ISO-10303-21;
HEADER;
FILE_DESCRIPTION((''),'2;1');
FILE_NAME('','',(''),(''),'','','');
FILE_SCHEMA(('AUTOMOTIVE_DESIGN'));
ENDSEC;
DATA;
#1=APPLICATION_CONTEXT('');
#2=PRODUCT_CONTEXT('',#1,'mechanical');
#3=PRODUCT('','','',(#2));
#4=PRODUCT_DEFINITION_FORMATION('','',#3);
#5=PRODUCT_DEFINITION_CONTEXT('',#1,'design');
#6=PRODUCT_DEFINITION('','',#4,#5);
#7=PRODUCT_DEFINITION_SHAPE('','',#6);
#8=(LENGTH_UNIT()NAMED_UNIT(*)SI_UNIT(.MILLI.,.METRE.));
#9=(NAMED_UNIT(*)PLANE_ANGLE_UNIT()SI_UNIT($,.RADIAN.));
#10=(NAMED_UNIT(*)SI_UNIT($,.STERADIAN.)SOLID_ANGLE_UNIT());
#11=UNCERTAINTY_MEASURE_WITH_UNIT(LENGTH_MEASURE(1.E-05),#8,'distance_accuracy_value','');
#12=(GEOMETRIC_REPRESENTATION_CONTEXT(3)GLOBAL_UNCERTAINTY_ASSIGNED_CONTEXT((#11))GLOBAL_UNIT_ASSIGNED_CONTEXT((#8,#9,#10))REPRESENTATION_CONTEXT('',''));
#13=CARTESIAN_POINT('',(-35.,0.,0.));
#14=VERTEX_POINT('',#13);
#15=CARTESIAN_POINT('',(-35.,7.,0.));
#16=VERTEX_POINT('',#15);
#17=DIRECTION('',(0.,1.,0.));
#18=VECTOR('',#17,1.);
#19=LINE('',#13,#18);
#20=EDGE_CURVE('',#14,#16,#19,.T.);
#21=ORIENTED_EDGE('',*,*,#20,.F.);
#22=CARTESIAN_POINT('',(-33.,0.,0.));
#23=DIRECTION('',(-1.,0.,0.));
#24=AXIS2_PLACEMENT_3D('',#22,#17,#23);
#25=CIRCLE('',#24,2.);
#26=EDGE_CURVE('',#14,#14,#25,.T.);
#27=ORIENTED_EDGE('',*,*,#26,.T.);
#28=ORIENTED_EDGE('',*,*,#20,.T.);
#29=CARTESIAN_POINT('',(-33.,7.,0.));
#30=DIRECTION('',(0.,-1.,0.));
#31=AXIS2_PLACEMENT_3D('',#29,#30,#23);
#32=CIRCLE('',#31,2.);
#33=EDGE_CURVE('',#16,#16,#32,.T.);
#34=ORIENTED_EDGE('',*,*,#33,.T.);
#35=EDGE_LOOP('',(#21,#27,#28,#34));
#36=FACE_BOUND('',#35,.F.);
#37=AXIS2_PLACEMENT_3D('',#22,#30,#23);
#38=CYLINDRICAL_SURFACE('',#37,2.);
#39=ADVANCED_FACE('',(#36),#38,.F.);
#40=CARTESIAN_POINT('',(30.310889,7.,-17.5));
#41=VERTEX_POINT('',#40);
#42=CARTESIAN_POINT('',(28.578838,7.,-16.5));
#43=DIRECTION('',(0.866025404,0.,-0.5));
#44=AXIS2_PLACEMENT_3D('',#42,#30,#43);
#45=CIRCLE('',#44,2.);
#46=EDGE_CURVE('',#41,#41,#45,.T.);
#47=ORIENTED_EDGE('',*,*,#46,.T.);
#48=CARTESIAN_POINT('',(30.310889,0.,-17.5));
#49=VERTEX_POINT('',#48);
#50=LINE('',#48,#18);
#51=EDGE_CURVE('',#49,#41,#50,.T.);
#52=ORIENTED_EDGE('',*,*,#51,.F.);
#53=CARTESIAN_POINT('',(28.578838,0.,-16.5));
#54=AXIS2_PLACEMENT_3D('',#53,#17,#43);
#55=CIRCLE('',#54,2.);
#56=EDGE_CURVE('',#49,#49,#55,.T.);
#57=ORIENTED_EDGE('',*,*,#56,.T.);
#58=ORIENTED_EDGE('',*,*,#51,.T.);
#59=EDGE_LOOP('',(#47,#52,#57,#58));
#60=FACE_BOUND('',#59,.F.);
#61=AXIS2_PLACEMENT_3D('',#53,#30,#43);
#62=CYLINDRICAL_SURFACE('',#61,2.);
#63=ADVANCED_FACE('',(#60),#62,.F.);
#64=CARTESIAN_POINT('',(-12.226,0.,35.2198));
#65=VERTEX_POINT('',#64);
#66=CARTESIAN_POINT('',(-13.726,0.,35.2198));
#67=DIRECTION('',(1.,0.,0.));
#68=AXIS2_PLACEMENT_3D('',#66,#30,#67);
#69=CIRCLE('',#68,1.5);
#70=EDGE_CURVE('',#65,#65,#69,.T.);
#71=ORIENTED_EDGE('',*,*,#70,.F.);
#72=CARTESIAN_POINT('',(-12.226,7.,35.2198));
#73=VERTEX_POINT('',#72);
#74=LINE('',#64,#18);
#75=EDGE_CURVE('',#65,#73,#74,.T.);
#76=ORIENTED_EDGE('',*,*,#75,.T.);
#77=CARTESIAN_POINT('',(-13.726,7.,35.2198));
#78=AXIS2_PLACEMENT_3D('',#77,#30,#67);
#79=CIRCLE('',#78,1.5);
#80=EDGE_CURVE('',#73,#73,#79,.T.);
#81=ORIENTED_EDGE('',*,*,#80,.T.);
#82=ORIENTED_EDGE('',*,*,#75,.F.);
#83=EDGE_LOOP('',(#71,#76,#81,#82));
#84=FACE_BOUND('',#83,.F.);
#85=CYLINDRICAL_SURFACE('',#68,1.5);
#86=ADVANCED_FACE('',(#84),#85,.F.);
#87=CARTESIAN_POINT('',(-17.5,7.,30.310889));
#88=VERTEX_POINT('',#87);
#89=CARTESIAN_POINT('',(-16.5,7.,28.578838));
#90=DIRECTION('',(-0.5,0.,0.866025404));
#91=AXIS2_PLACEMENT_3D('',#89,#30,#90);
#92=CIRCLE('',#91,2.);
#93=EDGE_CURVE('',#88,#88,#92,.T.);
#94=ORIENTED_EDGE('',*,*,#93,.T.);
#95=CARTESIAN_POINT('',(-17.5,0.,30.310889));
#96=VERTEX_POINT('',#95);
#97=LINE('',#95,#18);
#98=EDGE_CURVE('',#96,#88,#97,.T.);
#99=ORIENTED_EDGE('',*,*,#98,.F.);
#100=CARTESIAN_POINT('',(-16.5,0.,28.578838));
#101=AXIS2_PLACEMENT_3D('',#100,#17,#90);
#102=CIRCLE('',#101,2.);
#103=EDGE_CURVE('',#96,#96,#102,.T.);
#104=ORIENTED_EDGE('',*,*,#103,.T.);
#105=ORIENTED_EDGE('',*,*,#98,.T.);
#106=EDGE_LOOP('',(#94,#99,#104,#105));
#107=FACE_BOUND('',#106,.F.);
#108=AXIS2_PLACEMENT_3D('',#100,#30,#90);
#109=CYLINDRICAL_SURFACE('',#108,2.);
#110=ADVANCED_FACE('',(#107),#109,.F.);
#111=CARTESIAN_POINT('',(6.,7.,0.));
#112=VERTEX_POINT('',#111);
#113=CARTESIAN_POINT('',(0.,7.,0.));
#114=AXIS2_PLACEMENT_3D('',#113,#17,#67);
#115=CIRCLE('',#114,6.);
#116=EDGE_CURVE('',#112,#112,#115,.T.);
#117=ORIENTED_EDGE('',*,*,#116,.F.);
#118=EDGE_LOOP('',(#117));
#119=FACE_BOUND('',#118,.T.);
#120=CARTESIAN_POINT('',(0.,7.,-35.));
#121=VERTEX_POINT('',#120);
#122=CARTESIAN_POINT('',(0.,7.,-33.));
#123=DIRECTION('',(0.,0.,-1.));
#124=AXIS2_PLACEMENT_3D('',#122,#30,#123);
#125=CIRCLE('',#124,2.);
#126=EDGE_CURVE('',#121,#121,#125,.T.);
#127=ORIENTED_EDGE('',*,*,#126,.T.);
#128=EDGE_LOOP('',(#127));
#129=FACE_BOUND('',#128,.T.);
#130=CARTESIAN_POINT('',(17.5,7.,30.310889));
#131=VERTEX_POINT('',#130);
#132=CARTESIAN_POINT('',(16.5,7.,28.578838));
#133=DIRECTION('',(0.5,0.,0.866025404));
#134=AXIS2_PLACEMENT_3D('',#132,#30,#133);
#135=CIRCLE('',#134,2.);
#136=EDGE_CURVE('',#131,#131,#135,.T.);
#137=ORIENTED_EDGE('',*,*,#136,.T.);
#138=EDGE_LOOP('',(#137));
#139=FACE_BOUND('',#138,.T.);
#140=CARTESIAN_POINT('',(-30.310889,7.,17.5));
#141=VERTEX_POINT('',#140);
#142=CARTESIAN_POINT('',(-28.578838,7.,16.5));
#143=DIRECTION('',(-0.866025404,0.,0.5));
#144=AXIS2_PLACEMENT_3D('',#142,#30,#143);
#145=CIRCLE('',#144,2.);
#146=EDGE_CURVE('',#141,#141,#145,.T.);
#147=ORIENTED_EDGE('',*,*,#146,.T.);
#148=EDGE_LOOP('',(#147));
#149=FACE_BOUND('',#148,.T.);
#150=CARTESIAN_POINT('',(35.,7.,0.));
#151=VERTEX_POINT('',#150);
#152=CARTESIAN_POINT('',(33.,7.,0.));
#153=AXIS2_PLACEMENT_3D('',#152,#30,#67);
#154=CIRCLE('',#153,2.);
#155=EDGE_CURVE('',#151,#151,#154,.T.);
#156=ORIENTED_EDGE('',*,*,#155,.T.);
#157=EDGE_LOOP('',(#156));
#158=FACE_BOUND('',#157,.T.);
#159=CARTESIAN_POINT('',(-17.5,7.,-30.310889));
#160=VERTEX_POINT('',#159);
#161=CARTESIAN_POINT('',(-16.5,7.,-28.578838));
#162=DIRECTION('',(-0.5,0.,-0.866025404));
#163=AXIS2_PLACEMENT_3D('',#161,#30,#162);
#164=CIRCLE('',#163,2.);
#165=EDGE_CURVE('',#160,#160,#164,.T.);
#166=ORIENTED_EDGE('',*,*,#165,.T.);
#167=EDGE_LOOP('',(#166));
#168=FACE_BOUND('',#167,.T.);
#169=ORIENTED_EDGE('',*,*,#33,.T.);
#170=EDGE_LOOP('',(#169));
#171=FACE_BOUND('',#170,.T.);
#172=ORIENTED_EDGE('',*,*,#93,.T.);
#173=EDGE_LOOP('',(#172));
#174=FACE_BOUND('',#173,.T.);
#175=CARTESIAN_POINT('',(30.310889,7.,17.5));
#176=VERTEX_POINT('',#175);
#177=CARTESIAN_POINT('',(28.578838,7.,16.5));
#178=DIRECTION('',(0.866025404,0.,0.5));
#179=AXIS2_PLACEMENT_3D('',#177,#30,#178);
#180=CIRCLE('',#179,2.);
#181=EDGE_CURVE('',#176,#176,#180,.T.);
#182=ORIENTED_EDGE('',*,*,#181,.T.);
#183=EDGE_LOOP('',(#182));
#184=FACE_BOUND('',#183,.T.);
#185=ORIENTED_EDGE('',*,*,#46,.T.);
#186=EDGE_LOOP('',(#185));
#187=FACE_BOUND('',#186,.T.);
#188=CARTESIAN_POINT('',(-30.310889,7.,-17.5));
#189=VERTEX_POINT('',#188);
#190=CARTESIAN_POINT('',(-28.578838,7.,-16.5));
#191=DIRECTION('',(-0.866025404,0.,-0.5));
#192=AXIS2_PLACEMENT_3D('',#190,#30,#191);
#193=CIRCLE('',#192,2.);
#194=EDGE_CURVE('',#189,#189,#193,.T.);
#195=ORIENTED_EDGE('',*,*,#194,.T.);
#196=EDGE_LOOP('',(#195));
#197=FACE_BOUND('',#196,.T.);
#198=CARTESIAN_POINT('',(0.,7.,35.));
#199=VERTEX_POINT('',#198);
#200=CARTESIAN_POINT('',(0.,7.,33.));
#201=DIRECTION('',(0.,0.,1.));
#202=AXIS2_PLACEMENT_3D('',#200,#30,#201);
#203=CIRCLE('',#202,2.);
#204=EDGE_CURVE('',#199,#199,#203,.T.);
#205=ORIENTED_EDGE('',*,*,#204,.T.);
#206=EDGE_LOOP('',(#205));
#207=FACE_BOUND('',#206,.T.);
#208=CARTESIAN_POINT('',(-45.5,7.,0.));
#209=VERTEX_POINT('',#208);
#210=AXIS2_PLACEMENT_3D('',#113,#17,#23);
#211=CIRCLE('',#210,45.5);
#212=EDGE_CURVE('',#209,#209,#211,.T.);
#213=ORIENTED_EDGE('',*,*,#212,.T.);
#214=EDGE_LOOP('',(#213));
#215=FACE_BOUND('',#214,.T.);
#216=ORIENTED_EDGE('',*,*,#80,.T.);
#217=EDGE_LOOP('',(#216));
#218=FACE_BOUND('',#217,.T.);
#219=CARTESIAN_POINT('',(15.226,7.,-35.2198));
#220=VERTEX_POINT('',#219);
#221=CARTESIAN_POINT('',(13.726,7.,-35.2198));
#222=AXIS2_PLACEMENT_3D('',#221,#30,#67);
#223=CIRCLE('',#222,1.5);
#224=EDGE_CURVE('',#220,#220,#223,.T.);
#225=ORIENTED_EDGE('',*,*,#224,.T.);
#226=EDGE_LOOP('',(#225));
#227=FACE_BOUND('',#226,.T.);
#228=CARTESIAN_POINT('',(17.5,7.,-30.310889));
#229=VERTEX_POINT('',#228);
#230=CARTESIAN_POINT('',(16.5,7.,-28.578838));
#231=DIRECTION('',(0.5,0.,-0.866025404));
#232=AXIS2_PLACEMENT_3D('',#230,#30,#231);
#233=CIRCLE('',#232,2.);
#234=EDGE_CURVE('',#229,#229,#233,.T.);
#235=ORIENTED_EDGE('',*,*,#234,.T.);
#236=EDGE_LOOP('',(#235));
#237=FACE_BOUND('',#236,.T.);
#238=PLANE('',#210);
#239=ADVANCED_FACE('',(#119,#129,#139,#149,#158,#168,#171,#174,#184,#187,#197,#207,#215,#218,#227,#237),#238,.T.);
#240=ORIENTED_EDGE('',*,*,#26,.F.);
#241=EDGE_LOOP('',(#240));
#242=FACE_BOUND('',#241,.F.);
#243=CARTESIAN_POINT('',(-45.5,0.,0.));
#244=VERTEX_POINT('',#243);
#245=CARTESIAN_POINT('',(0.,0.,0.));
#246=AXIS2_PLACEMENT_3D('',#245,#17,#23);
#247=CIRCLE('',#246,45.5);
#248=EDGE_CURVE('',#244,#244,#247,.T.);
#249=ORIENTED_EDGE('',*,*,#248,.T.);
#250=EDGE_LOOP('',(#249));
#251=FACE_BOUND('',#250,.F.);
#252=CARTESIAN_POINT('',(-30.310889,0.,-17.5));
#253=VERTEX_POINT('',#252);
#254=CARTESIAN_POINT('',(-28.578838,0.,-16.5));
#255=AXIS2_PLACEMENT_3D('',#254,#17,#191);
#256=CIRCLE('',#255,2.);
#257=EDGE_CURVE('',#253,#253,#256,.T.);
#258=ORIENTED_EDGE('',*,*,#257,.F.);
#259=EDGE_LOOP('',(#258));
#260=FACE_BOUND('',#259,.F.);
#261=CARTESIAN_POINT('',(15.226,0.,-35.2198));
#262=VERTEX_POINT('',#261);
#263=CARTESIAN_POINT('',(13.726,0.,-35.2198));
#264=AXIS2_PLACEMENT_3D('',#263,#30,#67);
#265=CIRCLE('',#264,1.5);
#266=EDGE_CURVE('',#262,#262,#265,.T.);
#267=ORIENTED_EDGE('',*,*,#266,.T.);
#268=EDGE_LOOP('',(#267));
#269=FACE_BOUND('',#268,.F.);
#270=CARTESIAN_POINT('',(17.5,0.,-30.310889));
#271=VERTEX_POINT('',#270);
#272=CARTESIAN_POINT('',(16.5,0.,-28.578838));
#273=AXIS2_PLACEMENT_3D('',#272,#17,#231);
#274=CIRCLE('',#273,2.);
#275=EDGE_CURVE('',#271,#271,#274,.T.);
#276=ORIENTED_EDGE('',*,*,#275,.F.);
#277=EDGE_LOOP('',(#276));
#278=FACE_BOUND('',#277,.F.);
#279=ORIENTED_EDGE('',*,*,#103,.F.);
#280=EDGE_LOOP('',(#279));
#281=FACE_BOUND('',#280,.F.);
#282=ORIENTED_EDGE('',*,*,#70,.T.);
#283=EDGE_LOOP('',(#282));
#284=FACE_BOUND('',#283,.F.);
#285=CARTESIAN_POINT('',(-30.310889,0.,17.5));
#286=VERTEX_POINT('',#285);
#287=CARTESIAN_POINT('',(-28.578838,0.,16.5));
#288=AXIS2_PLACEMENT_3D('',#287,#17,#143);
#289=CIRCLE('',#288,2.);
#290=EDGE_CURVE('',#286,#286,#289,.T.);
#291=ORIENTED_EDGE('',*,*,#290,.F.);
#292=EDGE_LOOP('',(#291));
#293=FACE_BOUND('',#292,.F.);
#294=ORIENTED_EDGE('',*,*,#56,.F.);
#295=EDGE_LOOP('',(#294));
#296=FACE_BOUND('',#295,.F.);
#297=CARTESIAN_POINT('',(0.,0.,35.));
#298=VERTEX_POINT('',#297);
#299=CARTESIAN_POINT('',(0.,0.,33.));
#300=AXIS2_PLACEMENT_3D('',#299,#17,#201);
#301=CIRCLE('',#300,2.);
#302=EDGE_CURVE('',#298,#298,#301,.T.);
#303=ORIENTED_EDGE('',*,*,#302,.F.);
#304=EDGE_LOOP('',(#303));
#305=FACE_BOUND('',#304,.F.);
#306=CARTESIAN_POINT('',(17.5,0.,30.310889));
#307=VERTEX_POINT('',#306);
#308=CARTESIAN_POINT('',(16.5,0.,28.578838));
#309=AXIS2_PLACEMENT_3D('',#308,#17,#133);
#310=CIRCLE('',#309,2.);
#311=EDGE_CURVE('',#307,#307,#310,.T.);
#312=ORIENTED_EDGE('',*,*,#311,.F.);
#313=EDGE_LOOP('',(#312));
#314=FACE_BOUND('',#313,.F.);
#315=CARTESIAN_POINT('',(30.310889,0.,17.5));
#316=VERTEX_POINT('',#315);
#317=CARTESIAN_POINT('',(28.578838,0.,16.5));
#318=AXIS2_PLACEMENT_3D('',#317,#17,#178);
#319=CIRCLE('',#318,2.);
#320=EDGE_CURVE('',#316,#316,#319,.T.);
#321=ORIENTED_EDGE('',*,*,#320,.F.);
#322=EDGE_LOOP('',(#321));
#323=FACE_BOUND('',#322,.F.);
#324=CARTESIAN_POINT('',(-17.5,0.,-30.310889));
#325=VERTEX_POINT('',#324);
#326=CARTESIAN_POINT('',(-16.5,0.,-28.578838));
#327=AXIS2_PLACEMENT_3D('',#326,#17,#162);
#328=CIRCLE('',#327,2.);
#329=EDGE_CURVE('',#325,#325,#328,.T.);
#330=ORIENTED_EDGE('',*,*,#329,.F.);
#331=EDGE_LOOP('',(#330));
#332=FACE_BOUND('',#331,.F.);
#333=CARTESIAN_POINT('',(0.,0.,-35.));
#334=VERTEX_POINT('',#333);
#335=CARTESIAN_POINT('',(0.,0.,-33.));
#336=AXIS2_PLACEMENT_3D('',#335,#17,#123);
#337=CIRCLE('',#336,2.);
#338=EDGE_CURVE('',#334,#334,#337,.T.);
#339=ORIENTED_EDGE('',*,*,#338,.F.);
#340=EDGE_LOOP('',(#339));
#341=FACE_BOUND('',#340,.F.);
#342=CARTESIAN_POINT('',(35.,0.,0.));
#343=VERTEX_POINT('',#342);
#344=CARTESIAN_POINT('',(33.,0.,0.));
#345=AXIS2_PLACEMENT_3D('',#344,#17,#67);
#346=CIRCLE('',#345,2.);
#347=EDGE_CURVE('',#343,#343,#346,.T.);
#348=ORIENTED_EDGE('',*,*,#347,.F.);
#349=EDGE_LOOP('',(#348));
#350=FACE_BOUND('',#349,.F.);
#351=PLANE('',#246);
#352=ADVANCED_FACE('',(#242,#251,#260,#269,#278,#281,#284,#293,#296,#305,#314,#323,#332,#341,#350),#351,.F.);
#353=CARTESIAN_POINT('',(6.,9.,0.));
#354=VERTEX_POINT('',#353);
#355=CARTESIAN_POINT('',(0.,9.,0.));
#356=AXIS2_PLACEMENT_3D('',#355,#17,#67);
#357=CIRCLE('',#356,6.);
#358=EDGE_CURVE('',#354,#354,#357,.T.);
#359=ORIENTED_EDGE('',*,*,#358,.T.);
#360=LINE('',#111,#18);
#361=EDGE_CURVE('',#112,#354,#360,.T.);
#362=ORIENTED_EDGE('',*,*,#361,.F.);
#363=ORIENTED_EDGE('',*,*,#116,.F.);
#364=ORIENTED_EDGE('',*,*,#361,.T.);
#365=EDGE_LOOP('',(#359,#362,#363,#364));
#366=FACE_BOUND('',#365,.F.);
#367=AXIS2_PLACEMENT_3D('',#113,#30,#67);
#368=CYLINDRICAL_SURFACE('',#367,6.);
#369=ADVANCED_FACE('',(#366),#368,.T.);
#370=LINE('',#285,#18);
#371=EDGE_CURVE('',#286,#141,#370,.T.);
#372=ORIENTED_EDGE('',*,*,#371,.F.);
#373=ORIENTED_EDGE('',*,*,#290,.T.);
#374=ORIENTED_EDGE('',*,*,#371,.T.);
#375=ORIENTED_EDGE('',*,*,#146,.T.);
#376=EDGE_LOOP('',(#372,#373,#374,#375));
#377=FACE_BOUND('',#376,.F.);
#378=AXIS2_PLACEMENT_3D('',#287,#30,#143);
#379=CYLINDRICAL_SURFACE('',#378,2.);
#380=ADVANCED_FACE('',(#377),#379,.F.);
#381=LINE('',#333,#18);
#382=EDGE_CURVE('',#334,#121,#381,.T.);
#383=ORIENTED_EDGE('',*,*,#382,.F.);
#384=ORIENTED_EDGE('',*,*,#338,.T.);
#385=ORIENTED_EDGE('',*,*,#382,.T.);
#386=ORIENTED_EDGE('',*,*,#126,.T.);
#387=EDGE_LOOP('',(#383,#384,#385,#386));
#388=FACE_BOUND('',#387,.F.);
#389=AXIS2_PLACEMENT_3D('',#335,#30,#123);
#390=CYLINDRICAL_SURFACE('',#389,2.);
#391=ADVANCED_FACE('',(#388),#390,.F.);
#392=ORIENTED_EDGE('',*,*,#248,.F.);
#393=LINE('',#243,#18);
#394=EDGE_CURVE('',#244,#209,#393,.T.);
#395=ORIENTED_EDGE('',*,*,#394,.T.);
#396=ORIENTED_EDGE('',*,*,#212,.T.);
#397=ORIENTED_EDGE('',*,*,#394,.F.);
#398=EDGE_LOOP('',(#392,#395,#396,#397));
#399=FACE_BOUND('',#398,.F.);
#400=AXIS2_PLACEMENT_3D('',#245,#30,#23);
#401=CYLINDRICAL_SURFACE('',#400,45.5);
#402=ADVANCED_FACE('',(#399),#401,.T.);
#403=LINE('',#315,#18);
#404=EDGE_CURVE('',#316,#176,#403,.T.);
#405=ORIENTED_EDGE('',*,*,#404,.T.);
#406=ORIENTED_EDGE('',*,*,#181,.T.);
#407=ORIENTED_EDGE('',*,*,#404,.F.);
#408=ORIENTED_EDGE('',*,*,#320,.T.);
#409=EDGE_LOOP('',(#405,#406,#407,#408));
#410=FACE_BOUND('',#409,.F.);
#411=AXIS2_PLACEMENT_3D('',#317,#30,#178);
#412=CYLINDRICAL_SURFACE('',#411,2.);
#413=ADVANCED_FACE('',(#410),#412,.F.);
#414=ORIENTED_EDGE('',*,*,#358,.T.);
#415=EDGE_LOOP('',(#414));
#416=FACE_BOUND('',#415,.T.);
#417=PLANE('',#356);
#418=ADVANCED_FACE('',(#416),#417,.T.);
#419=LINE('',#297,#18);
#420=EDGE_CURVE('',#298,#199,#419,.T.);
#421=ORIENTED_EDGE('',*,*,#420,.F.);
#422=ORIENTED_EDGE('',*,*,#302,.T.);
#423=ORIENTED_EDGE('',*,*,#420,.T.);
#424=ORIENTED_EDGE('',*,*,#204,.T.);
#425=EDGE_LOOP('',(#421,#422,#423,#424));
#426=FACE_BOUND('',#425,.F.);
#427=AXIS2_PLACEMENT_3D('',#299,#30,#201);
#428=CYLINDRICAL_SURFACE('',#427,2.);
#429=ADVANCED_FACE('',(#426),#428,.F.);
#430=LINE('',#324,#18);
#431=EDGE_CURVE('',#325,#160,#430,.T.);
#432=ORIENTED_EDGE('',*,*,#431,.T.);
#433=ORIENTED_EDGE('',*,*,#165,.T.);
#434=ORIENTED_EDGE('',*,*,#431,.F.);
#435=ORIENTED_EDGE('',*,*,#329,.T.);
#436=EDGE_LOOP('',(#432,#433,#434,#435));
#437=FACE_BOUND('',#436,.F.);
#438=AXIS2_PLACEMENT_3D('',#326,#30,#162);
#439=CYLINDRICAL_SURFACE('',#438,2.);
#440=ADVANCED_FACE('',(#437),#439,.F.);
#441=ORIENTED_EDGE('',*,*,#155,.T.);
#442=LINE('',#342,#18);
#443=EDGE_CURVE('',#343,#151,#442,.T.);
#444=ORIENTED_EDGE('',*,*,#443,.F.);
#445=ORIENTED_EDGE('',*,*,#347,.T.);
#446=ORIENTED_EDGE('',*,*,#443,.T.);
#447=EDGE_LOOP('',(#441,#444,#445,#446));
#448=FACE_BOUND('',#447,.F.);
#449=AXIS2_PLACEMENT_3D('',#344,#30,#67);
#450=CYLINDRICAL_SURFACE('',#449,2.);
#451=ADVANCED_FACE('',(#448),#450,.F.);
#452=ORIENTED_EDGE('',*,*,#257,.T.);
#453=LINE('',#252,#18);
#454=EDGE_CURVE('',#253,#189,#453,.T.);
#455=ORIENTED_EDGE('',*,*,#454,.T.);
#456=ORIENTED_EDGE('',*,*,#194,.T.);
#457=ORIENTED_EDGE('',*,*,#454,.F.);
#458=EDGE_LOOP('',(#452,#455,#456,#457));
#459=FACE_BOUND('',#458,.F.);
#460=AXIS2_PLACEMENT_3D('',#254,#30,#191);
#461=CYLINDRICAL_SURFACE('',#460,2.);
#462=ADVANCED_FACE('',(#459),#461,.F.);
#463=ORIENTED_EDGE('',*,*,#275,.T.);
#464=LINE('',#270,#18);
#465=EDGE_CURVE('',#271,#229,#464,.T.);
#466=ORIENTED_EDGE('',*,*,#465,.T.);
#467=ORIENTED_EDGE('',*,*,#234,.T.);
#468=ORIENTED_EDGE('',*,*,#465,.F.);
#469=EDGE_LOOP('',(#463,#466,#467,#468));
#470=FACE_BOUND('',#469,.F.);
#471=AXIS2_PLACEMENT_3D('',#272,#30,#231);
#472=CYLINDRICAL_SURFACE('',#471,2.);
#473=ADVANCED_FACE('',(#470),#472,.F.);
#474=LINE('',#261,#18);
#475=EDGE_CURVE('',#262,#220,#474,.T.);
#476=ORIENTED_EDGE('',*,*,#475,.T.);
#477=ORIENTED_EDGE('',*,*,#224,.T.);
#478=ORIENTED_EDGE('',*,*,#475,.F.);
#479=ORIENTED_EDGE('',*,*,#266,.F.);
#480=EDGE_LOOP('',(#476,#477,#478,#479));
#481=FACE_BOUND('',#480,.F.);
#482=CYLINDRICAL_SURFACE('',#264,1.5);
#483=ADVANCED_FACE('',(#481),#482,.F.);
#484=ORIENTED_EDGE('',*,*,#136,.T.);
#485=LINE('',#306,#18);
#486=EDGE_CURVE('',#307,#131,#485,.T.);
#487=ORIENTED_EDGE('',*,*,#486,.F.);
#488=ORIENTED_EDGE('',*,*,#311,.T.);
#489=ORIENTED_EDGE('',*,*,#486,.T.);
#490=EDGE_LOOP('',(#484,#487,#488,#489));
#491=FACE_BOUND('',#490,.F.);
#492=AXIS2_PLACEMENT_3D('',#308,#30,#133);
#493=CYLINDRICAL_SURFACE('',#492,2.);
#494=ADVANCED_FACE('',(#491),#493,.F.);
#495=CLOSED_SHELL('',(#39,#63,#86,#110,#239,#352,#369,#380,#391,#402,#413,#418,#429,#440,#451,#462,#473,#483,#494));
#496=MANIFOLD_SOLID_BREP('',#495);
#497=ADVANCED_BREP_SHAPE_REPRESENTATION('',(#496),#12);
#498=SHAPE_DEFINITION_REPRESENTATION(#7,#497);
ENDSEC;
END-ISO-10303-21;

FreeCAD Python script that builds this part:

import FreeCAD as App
import Part
import Sketcher
from FreeCAD import Vector

doc = App.newDocument("Part")
body = doc.addObject("PartDesign::Body", "Body")

# Sketch on XZ plane
sketch1 = body.newObject("Sketcher::SketchObject", "Sketch")
sketch1.AttachmentSupport = (doc.getObject("XZ_Plane"), [""])
sketch1.MapMode = "FlatFace"
sketch1.addGeometry(Part.Circle(Vector(0, 0, 0), Vector(0, 0, 1), 46), False)
sketch1.addConstraint([
    Sketcher.Constraint("Coincident", 0, 3, -1, 1),
    Sketcher.Constraint("Diameter", 0, 91.0),
])
pad1 = body.newObject("PartDesign::Pad", "Pad")
pad1.Profile = sketch1
pad1.Length = 7
pad1.Reversed = True

# Sketch on XZ plane
sketch2 = body.newObject("Sketcher::SketchObject", "Sketch001")
sketch2.AttachmentSupport = (doc.getObject("XZ_Plane"), [""])
sketch2.MapMode = "FlatFace"
sketch2.AttachmentOffset = App.Placement(Vector(0, 0, -7), App.Rotation())
sketch2.addGeometry(Part.Circle(Vector(0, 0, 0), Vector(0, 0, 1), 6), False)
sketch2.addConstraint([
    Sketcher.Constraint("Coincident", 0, 3, -1, 1),
    Sketcher.Constraint("Diameter", 0, 12.0),
])
pad2 = body.newObject("PartDesign::Pad", "Pad001")
pad2.Profile = sketch2
pad2.Length = 2
pad2.Reversed = True

# Sketch on XZ plane
sketch3 = body.newObject("Sketcher::SketchObject", "Sketch002")
sketch3.AttachmentSupport = (doc.getObject("XZ_Plane"), [""])
sketch3.MapMode = "FlatFace"
sketch3.addGeometry(Part.Circle(Vector(33, 0, 0), Vector(0, 0, 1), 2), False)
sketch3.addConstraint([
    Sketcher.Constraint("PointOnObject", 0, 3, -1),
    Sketcher.Constraint("Diameter", 0, 4.0),
    Sketcher.Constraint("DistanceX", -1, 1, 0, 3, 33.0),
])
pocket1 = body.newObject("PartDesign::Pocket", "Pocket")
pocket1.Profile = sketch3
pocket1.Length = 10
doc.recompute()

polarpattern = body.newObject("PartDesign::PolarPattern", "PolarPattern")
polarpattern.Originals = [pocket1]
polarpattern.Axis = (doc.getObject("Y_Axis"), [""])
polarpattern.Angle = 360
polarpattern.Occurrences = 12
body.Tip = polarpattern

# Sketch on XZ plane
sketch4 = body.newObject("Sketcher::SketchObject", "Sketch003")
sketch4.AttachmentSupport = (doc.getObject("XZ_Plane"), [""])
sketch4.MapMode = "FlatFace"
sketch4.addGeometry([
    Part.Circle(Vector(-13.7, 35.2, 0), Vector(0, 0, 1), 1.5),
    Part.Circle(Vector(13.7, -35.2, 0), Vector(0, 0, 1), 1.5),
], False)
sketch4.addConstraint([
    Sketcher.Constraint("Equal", 0, 1),
    Sketcher.Constraint("Symmetric", 0, 3, 1, 3, -1, 1),
    Sketcher.Constraint("Diameter", 0, 3.0),
    Sketcher.Constraint("DistanceX", 0, 3, -1, 1, 13.726),
    Sketcher.Constraint("DistanceY", -1, 1, 0, 3, 35.2198),
])
pocket2 = body.newObject("PartDesign::Pocket", "Pocket001")
pocket2.Profile = sketch4
pocket2.Length = 10

doc.recompute()
